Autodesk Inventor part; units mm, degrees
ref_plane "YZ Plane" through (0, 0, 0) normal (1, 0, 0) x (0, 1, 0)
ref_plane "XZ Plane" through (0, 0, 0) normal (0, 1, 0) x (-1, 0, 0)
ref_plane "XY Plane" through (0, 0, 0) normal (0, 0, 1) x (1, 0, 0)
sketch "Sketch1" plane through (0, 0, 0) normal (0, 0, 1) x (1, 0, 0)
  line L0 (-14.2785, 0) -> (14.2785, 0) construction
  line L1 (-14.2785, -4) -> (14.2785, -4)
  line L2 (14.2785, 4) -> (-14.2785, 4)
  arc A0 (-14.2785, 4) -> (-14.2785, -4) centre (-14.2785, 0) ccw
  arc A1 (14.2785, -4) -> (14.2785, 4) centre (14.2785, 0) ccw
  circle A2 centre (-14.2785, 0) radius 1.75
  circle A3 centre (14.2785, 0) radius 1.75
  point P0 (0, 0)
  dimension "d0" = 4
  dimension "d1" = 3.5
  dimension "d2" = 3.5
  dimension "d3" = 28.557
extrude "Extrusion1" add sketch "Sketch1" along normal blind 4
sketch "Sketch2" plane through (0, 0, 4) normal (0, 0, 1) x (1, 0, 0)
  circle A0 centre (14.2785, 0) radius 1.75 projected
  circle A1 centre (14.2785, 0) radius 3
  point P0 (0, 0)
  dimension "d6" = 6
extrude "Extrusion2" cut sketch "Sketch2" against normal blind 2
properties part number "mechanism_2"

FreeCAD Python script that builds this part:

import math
import FreeCAD as App
import Part
import Sketcher
from FreeCAD import Vector
Q = App.Units.Quantity

doc = App.newDocument("Part")
body = doc.addObject("PartDesign::Body", "Body")

sketch1 = body.newObject("Sketcher::SketchObject", "Sketch")
sketch1.AttachmentSupport = (doc.getObject("XY_Plane"), [""])
sketch1.MapMode = "FlatFace"
sketch1.addGeometry([
    Part.ArcOfCircle(Part.Circle(Vector(-14.3, 0, 0), Vector(0, 0, 1), 4), math.radians(90), math.radians(270)),
    Part.LineSegment(Vector(-14.3, -4, 0), Vector(14.3, -4, 0)),
    Part.ArcOfCircle(Part.Circle(Vector(14.3, 0, 0), Vector(0, 0, 1), 4), math.radians(-90), math.radians(90)),
    Part.LineSegment(Vector(14.3, 4, 0), Vector(-14.3, 4, 0)),
    Part.Circle(Vector(-14.3, 0, 0), Vector(0, 0, 1), 1.8),
    Part.Circle(Vector(14.3, 0, 0), Vector(0, 0, 1), 1.8),
], False)
sketch1.addConstraint([
    Sketcher.Constraint("Tangent", 0, 2, 1, 1),
    Sketcher.Constraint("Tangent", 1, 2, 2, 1),
    Sketcher.Constraint("Tangent", 2, 2, 3, 1),
    Sketcher.Constraint("Tangent", 3, 2, 0, 1),
    Sketcher.Constraint("Horizontal", 1),
    Sketcher.Constraint("Horizontal", 3),
    Sketcher.Constraint("Coincident", 4, 3, 0, 3),
    Sketcher.Constraint("Coincident", 5, 3, 2, 3),
    Sketcher.Constraint("Equal", 4, 5),
    Sketcher.Constraint("Symmetric", 0, 3, 2, 3, -1, 1),
    Sketcher.Constraint("Radius", 0, Q("4 mm")),
    Sketcher.Constraint("Diameter", 4, Q("3.5 mm")),
    Sketcher.Constraint("DistanceX", 1, 1, 1, 2, Q("28.557 mm")),
])
pad1 = body.newObject("PartDesign::Pad", "Pad")
pad1.Profile = sketch1
pad1.Length = 4

sketch2 = body.newObject("Sketcher::SketchObject", "Sketch001")
sketch2.AttachmentSupport = (doc.getObject("XY_Plane"), [""])
sketch2.MapMode = "FlatFace"
sketch2.AttachmentOffset = App.Placement(Vector(0, 0, 4), App.Rotation())
sketch2.addGeometry([
    Part.Circle(Vector(14.3, 0, 0), Vector(0, 0, 1), 3),
    Part.Circle(Vector(14.3, 0, 0), Vector(0, 0, 1), 1.8),
], False)
sketch2.addConstraint([
    Sketcher.Constraint("Coincident", 1, 3, 0, 3),
    Sketcher.Constraint("PointOnObject", 0, 3, -1),
    Sketcher.Constraint("Diameter", 0, Q("6 mm")),
    Sketcher.Constraint("Diameter", 1, Q("3.5 mm")),
    Sketcher.Constraint("DistanceX", -1, 1, 0, 3, Q("14.2785 mm")),
])
pocket1 = body.newObject("PartDesign::Pocket", "Pocket")
pocket1.Profile = sketch2
pocket1.Length = 2

doc.recompute()
